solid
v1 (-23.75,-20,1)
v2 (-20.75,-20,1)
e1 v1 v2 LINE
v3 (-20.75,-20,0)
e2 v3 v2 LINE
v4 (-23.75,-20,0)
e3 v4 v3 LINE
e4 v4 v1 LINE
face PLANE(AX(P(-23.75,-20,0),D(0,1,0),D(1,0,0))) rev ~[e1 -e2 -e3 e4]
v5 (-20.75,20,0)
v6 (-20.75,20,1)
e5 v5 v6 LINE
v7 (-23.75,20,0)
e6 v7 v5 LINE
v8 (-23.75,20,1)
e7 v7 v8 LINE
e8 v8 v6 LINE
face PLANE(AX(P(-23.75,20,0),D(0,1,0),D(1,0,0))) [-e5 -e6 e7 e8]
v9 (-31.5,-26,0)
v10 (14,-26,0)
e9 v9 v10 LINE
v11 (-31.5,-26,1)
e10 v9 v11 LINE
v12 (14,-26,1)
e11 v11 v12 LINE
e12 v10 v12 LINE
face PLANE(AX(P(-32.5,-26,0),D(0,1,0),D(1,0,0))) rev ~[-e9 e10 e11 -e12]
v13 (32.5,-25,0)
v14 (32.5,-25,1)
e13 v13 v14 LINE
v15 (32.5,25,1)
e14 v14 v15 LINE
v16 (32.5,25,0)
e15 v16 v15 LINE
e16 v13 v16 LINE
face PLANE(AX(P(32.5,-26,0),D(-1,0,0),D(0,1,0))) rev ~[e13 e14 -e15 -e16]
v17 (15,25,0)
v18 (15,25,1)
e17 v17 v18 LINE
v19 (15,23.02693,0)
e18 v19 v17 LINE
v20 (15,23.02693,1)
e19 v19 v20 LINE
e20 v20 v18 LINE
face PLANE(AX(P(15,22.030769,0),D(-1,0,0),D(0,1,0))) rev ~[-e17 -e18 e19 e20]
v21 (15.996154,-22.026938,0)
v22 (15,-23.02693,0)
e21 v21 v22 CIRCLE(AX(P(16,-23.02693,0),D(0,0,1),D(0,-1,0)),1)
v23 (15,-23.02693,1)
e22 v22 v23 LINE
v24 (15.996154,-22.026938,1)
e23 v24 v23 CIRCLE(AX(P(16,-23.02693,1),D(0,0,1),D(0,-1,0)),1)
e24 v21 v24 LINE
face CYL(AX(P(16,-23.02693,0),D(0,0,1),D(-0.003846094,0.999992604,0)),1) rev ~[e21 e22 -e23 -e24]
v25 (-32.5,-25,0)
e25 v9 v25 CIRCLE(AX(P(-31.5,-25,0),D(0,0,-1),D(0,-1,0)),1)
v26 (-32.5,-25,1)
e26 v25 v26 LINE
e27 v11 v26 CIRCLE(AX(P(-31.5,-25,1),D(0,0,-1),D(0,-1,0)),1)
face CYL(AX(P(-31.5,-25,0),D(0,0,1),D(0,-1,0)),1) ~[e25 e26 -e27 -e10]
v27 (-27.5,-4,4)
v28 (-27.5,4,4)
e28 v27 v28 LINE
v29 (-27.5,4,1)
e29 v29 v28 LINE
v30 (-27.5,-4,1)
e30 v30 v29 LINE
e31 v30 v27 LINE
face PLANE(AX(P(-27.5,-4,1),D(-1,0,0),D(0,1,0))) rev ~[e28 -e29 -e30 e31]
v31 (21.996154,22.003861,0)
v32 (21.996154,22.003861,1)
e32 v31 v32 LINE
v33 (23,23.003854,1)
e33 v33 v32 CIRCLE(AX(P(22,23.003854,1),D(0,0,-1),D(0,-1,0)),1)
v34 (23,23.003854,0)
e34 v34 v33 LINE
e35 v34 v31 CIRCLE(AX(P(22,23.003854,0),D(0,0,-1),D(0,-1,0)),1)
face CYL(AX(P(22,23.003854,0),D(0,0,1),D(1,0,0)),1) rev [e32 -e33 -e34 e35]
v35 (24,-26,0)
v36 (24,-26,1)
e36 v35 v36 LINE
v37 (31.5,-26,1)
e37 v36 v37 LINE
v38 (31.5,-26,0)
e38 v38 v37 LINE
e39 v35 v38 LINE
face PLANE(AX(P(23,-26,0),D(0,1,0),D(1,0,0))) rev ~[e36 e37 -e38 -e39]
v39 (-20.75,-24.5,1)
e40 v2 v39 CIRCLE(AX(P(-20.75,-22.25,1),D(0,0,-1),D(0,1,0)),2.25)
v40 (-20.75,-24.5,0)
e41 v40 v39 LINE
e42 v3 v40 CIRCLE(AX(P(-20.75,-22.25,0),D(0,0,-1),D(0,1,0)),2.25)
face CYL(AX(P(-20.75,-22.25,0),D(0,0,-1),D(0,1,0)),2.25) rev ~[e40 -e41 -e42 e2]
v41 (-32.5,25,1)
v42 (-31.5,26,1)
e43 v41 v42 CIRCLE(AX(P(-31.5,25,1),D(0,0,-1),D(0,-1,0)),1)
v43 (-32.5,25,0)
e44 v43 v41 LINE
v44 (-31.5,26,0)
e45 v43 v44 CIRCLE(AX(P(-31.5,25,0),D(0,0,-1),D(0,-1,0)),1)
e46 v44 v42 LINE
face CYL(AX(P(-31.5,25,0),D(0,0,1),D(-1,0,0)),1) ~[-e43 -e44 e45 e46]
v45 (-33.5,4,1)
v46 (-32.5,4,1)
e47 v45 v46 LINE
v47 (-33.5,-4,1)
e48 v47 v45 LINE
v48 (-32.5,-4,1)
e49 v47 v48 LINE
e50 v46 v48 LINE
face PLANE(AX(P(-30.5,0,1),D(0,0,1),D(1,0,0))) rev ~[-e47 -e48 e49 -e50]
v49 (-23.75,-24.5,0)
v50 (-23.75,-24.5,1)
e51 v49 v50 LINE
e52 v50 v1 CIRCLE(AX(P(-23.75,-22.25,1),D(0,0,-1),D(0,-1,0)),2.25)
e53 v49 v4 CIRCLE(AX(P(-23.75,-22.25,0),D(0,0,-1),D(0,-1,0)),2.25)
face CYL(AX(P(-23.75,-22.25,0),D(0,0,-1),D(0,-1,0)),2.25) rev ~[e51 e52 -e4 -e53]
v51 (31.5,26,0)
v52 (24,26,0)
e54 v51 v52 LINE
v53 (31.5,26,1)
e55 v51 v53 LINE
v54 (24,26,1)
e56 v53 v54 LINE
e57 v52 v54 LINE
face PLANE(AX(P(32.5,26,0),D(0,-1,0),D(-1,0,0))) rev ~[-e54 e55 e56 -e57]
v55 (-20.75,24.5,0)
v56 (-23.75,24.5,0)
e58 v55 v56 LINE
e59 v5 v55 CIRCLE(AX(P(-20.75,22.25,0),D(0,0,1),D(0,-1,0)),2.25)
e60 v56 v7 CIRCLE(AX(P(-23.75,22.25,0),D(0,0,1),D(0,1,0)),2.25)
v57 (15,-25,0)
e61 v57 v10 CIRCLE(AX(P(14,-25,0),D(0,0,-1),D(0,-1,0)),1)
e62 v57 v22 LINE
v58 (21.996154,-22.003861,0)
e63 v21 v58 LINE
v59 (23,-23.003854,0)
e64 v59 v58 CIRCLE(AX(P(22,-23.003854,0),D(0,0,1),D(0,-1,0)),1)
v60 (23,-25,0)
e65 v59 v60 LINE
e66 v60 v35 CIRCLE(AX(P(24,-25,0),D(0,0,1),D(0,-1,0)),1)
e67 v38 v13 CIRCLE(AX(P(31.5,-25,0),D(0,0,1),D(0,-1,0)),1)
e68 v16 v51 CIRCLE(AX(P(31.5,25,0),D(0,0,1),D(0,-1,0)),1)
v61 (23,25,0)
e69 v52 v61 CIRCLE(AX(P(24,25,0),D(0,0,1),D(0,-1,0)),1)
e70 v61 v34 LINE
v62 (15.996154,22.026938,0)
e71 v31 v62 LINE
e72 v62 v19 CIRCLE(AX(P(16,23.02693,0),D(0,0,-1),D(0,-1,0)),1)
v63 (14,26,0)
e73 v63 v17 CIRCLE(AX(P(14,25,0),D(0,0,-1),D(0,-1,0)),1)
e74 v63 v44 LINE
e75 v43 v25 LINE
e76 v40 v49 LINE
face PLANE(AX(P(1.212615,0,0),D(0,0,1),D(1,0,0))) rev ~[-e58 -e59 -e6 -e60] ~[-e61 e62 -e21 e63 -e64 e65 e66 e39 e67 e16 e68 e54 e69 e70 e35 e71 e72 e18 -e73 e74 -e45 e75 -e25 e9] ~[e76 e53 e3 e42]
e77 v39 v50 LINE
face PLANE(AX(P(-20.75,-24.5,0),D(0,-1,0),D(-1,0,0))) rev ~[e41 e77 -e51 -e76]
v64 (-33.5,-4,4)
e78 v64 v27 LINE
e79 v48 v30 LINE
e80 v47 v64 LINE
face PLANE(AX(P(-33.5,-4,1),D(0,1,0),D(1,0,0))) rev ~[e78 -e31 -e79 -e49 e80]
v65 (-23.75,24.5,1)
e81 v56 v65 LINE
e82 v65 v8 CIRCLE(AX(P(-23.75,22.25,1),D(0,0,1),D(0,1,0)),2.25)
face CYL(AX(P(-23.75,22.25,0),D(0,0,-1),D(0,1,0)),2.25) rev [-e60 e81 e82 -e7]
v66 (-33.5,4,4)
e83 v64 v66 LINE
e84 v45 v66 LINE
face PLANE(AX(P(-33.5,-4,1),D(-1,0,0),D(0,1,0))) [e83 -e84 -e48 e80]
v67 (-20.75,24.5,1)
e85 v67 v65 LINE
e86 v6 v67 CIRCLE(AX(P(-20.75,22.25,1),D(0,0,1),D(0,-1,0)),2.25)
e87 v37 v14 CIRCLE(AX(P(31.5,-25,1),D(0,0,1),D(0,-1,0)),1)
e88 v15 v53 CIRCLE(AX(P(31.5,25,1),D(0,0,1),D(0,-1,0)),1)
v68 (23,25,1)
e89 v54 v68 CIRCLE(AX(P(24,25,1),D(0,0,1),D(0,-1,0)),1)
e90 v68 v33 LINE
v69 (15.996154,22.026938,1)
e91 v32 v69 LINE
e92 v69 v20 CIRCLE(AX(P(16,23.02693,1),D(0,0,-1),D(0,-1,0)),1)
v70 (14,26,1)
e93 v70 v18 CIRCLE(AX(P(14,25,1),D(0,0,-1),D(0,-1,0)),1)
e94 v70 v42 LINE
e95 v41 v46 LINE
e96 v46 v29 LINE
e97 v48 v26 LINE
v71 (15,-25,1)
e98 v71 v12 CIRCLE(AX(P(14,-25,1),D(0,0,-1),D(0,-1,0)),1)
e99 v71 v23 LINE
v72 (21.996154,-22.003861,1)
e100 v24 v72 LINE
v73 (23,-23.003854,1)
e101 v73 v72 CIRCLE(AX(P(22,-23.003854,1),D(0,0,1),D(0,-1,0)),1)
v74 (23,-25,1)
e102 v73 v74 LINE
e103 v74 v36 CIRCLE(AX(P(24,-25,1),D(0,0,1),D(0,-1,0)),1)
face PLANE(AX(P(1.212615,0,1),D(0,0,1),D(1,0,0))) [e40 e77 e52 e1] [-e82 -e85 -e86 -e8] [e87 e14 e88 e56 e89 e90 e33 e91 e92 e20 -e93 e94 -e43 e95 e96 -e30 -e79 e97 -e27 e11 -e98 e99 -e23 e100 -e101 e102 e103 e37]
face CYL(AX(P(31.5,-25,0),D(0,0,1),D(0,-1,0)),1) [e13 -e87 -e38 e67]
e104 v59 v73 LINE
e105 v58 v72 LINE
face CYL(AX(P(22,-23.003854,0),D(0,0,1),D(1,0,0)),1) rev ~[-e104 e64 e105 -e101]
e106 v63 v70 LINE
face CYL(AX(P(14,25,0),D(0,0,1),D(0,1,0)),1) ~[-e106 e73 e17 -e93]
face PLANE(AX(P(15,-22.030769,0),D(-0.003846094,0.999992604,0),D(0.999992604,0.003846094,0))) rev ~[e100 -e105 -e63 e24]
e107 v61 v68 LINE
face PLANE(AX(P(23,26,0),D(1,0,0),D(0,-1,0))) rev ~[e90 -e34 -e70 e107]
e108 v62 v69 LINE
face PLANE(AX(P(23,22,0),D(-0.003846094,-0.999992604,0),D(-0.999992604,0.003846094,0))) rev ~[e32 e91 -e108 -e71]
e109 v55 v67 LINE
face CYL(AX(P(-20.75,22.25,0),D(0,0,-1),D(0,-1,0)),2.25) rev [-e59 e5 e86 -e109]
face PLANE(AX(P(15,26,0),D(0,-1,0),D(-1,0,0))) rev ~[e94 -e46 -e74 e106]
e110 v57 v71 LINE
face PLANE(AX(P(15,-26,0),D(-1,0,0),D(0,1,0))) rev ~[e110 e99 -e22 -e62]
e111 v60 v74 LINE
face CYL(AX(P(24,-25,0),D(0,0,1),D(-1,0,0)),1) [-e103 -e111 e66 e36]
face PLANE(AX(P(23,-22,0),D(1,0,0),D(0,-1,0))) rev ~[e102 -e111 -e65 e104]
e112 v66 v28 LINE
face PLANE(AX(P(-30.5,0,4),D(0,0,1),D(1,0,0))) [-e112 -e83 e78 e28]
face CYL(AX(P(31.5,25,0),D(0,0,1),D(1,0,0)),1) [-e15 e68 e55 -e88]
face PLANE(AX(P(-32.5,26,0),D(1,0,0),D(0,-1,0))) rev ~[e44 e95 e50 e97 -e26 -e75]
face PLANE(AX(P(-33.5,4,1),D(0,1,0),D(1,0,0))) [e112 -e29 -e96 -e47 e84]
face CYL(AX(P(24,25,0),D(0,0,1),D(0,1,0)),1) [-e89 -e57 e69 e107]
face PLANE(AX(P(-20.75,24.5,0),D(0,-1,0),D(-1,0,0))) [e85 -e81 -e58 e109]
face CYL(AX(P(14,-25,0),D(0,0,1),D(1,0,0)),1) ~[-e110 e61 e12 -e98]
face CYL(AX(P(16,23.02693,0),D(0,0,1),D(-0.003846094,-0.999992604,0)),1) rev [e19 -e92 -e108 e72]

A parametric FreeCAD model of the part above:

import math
import FreeCAD as App
import Part
import Sketcher

V = App.Vector


def edges_at(feature, points):
    """Names of the edges that pass closest to the given points."""
    edges = feature.Shape.Edges
    near = lambda p: min(range(len(edges)), key=lambda i: edges[i].distToShape(Part.Vertex(*p))[0])
    return sorted({f"Edge{near(p) + 1}" for p in points})

doc = App.newDocument("Part")
params = doc.addObject("Spreadsheet::Sheet", "Params")
for row, (alias, value) in enumerate([
    ("sketch1_width", "3 mm"),
    ("sketch1_height", "4 mm"),
    ("sketch1_height2", "52 mm"),
    ("sketch1_radius", "2.25 mm"),
    ("sketch1_width2", "9.5 mm"),
    ("pad1_length", "1 mm"),
    ("fillet_radius", "1 mm"),
    ("sketch2_width", "6 mm"),
    ("sketch2_height", "8 mm"),
    ("pad2_length", "3 mm"),
], start=1):
    params.set(f"A{row}", alias)
    params.set(f"B{row}", "=" + value)
    params.setAlias(f"B{row}", alias)

body = doc.addObject("PartDesign::Body", "Body")

# Sketch on XY plane
sketch1 = doc.addObject("Sketcher::SketchObject", "Sketch")
body.addObject(sketch1)
sketch1.AttachmentSupport = (doc.XY_Plane, [""])
sketch1.MapMode = "FlatFace"
sketch1.addGeometry([
    Part.LineSegment(V(23, -22, 0), V(23, -26, 0)),  # 0
    Part.LineSegment(V(23, -26, 0), V(32.5, -26, 0)),  # 1
    Part.LineSegment(V(32.5, -26, 0), V(32.5, 26, 0)),  # 2
    Part.LineSegment(V(32.5, 26, 0), V(23, 26, 0)),  # 3
    Part.LineSegment(V(23, 26, 0), V(23, 22, 0)),  # 4
    Part.LineSegment(V(23, 22, 0), V(15, 22.030769, 0)),  # 5
    Part.LineSegment(V(15, 22.030769, 0), V(15, 26, 0)),  # 6
    Part.LineSegment(V(15, 26, 0), V(-32.5, 26, 0)),  # 7
    Part.LineSegment(V(-32.5, 26, 0), V(-32.5, -26, 0)),  # 8
    Part.LineSegment(V(-32.5, -26, 0), V(15, -26, 0)),  # 9
    Part.LineSegment(V(15, -26, 0), V(15, -22.030769, 0)),  # 10
    Part.LineSegment(V(15, -22.030769, 0), V(23, -22, 0)),  # 11
    Part.ArcOfCircle(Part.Circle(V(-23.75, -22.25, 0), V(0, 0, 1), 2.25), math.radians(90), math.radians(270)),  # 12
    Part.LineSegment(V(-23.75, -20, 0), V(-20.75, -20, 0)),  # 13
    Part.ArcOfCircle(Part.Circle(V(-20.75, -22.25, 0), V(0, 0, 1), 2.25), math.radians(-90), math.radians(90)),  # 14
    Part.LineSegment(V(-20.75, -24.5, 0), V(-23.75, -24.5, 0)),  # 15
    Part.ArcOfCircle(Part.Circle(V(-20.75, 22.25, 0), V(0, 0, 1), 2.25), math.radians(-90), math.radians(90)),  # 16
    Part.LineSegment(V(-20.75, 20, 0), V(-23.75, 20, 0)),  # 17
    Part.ArcOfCircle(Part.Circle(V(-23.75, 22.25, 0), V(0, 0, 1), 2.25), math.radians(90), math.radians(270)),  # 18
    Part.LineSegment(V(-23.75, 24.5, 0), V(-20.75, 24.5, 0)),  # 19
], False)
sketch1.addConstraint([
    Sketcher.Constraint("Coincident", 0, 2, 1, 1),
    Sketcher.Constraint("Coincident", 1, 2, 2, 1),
    Sketcher.Constraint("Coincident", 2, 2, 3, 1),
    Sketcher.Constraint("Coincident", 3, 2, 4, 1),
    Sketcher.Constraint("Coincident", 4, 2, 5, 1),
    Sketcher.Constraint("Coincident", 5, 2, 6, 1),
    Sketcher.Constraint("Coincident", 6, 2, 7, 1),
    Sketcher.Constraint("Coincident", 7, 2, 8, 1),
    Sketcher.Constraint("Coincident", 8, 2, 9, 1),
    Sketcher.Constraint("Coincident", 9, 2, 10, 1),
    Sketcher.Constraint("Coincident", 10, 2, 11, 1),
    Sketcher.Constraint("Coincident", 11, 2, 0, 1),
    Sketcher.Constraint("Tangent", 12, 1, 13, 1),
    Sketcher.Constraint("Tangent", 13, 2, 14, 2),
    Sketcher.Constraint("Tangent", 14, 1, 15, 1),
    Sketcher.Constraint("Tangent", 15, 2, 12, 2),
    Sketcher.Constraint("Tangent", 16, 1, 17, 1),
    Sketcher.Constraint("Tangent", 17, 2, 18, 2),
    Sketcher.Constraint("Tangent", 18, 1, 19, 1),
    Sketcher.Constraint("Tangent", 19, 2, 16, 2),
    Sketcher.Constraint("Vertical", 0),
    Sketcher.Constraint("Horizontal", 1),
    Sketcher.Constraint("Vertical", 2),
    Sketcher.Constraint("Horizontal", 3),
    Sketcher.Constraint("Vertical", 4),
    Sketcher.Constraint("Vertical", 6),
    Sketcher.Constraint("Horizontal", 7),
    Sketcher.Constraint("Vertical", 8),
    Sketcher.Constraint("Horizontal", 9),
    Sketcher.Constraint("Vertical", 10),
    Sketcher.Constraint("Horizontal", 13),
    Sketcher.Constraint("Horizontal", 15),
    Sketcher.Constraint("Horizontal", 17),
    Sketcher.Constraint("Horizontal", 19),
    Sketcher.Constraint("Equal", 14, 16),
    Sketcher.Constraint("Symmetric", 1, 2, 7, 2, -1, 1),
    Sketcher.Constraint("Symmetric", 14, 3, 16, 3, -1),
    Sketcher.Constraint("Symmetric", 0, 2, 3, 2, -1),
    Sketcher.Constraint("Symmetric", 6, 2, 9, 2, -1),
    Sketcher.Constraint("Vertical", 12, 3, 18, 3),
    Sketcher.Constraint("Equal", 0, 4),
    Sketcher.Constraint("Equal", 6, 10),
    Sketcher.Constraint("DistanceX", 13, 1, 13, 2, 3.0),
    Sketcher.Constraint("DistanceY", 0, 2, 0, 1, 4.0),
    Sketcher.Constraint("DistanceY", 2, 1, 2, 2, 52.0),
    Sketcher.Constraint("Radius", 12, 2.25),
    Sketcher.Constraint("DistanceX", 1, 1, 1, 2, 9.5),
    Sketcher.Constraint("DistanceX", 7, 2, 7, 1, 47.5),
    Sketcher.Constraint("DistanceX", -1, 1, 0, 2, 23.0),
    Sketcher.Constraint("DistanceY", 12, 1, -1, 1, 20.0),
    Sketcher.Constraint("DistanceX", 12, 3, -1, 1, 23.75),
    Sketcher.Constraint("DistanceY", 6, 1, 6, 2, 3.969231),
])
sketch1.setExpression("Constraints[42]", "Params.sketch1_width")
sketch1.setExpression("Constraints[43]", "Params.sketch1_height")
sketch1.setExpression("Constraints[44]", "Params.sketch1_height2")
sketch1.setExpression("Constraints[45]", "Params.sketch1_radius")
sketch1.setExpression("Constraints[46]", "Params.sketch1_width2")
pad1 = doc.addObject("PartDesign::Pad", "Pad")
body.addObject(pad1)
pad1.Profile = sketch1
pad1.setExpression("Length", "Params.pad1_length")
doc.recompute()

fillet = doc.addObject("PartDesign::Fillet", "Fillet")
body.addObject(fillet)
fillet.Base = (pad1, edges_at(pad1, [
    (23, -22, 0.5),
    (15, -22.031, 0.5),
    (15, -26, 0.5),
    (-32.5, -26, 0.5),
    (-32.5, 26, 0.5),
    (15, 26, 0.5),
    (15, 22.031, 0.5),
    (23, 22, 0.5),
    (23, 26, 0.5),
    (32.5, 26, 0.5),
    (32.5, -26, 0.5),
    (23, -26, 0.5),
]))
fillet.setExpression("Radius", "Params.fillet_radius")

# Sketch on XY plane
sketch2 = doc.addObject("Sketcher::SketchObject", "Sketch001")
body.addObject(sketch2)
sketch2.AttachmentSupport = (doc.XY_Plane, [""])
sketch2.MapMode = "FlatFace"
sketch2.AttachmentOffset = App.Placement(V(0, 0, 1), App.Rotation())
sketch2.addGeometry([
    Part.LineSegment(V(-33.5, 4, 0), V(-33.5, -4, 0)),
    Part.LineSegment(V(-33.5, -4, 0), V(-27.5, -4, 0)),
    Part.LineSegment(V(-27.5, -4, 0), V(-27.5, 4, 0)),
    Part.LineSegment(V(-27.5, 4, 0), V(-33.5, 4, 0)),
], False)
sketch2.addConstraint([
    Sketcher.Constraint("Coincident", 0, 2, 1, 1),
    Sketcher.Constraint("Coincident", 1, 2, 2, 1),
    Sketcher.Constraint("Coincident", 2, 2, 3, 1),
    Sketcher.Constraint("Coincident", 3, 2, 0, 1),
    Sketcher.Constraint("Vertical", 0),
    Sketcher.Constraint("Horizontal", 1),
    Sketcher.Constraint("Vertical", 2),
    Sketcher.Constraint("Horizontal", 3),
    Sketcher.Constraint("DistanceX", 1, 1, 1, 2, 6.0),
    Sketcher.Constraint("DistanceY", 0, 2, 0, 1, 8.0),
    Sketcher.Constraint("DistanceY", 0, 2, -1, 1, 4.0),
    Sketcher.Constraint("DistanceX", 0, 2, -1, 1, 33.5),
])
sketch2.setExpression("Constraints[8]", "Params.sketch2_width")
sketch2.setExpression("Constraints[9]", "Params.sketch2_height")
pad2 = doc.addObject("PartDesign::Pad", "Pad001")
body.addObject(pad2)
pad2.Profile = sketch2
pad2.setExpression("Length", "Params.pad2_length")

doc.recompute()
